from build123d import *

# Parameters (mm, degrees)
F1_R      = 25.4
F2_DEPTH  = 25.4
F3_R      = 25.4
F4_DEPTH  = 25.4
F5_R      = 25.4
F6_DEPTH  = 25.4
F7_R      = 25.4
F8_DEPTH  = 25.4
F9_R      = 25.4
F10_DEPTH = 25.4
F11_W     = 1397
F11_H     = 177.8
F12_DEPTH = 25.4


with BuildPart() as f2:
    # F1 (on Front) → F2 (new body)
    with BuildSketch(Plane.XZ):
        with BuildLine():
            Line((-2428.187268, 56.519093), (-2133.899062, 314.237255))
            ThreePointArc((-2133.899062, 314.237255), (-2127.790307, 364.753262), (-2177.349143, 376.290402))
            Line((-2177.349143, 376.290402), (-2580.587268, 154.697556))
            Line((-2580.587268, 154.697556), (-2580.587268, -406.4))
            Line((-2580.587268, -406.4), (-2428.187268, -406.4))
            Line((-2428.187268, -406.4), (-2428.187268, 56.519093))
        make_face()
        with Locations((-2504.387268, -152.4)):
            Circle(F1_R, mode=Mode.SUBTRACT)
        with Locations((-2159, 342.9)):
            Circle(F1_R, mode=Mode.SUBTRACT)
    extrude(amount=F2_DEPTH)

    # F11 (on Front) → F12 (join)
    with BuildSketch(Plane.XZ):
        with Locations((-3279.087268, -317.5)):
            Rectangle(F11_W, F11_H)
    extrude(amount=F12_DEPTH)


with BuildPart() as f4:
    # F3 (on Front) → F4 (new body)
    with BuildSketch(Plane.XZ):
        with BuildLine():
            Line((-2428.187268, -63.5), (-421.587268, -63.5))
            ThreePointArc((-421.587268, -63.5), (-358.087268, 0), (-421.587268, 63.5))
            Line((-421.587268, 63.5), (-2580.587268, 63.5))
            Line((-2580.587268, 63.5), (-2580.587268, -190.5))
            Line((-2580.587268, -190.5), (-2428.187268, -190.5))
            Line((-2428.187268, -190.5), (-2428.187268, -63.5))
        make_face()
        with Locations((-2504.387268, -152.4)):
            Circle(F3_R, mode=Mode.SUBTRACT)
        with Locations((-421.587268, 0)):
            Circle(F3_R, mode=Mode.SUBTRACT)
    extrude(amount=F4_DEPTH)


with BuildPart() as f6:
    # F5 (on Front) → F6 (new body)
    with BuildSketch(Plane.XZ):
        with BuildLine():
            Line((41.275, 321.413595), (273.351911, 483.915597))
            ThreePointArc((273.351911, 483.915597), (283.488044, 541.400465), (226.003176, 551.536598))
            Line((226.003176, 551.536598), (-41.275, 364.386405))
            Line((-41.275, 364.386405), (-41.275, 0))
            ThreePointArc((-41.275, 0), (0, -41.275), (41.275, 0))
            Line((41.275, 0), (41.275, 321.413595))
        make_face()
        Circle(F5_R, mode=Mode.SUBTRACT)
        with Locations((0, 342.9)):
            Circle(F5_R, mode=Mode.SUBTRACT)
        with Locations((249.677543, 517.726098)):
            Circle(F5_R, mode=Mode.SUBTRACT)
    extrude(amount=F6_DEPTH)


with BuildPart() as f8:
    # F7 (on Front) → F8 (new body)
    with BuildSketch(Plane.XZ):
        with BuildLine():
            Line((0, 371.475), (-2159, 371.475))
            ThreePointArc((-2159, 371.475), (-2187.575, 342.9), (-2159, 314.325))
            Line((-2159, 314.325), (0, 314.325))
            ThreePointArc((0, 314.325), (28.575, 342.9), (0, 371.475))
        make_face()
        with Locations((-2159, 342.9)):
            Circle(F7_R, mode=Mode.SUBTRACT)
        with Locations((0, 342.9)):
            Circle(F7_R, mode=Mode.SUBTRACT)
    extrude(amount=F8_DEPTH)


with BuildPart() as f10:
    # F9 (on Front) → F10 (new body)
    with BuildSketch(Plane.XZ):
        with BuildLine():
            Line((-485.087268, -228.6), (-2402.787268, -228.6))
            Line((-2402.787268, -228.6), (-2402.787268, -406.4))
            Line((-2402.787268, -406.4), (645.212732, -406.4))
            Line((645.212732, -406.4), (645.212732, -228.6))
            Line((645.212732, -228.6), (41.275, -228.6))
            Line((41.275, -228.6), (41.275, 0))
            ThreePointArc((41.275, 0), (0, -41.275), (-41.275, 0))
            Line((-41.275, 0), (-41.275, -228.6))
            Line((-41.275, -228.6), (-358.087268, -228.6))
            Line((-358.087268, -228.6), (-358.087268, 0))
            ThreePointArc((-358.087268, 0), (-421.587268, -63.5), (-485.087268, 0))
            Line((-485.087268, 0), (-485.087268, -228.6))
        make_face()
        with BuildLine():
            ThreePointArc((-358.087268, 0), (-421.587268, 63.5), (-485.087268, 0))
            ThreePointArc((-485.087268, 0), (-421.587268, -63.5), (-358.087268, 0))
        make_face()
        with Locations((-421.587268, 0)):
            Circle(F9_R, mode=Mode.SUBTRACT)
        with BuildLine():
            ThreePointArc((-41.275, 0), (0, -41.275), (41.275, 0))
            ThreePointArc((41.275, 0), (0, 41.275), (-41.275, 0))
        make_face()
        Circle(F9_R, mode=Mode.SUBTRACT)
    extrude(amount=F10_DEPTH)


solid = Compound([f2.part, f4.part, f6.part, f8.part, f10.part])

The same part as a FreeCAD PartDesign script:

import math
import FreeCAD as App
import Part
import Sketcher
from FreeCAD import Vector
Q = App.Units.Quantity

doc = App.newDocument("Part")
body = doc.addObject("PartDesign::Body", "Body")

# Sketch on XZ plane
sketch1 = body.newObject("Sketcher::SketchObject", "Sketch")
sketch1.AttachmentSupport = (doc.getObject("XZ_Plane"), [""])
sketch1.MapMode = "FlatFace"
sketch1.addGeometry([
    Part.LineSegment(Vector(-2428, 57, 0), Vector(-2134, 314, 0)),  # 0
    Part.ArcOfCircle(Part.Circle(Vector(-2159, 343, 0), Vector(0, 0, 1), 38), math.radians(-49), math.radians(119)),  # 1
    Part.LineSegment(Vector(-2177, 376, 0), Vector(-2581, 155, 0)),  # 2
    Part.LineSegment(Vector(-2581, 155, 0), Vector(-2581, -406, 0)),  # 3
    Part.LineSegment(Vector(-2581, -406, 0), Vector(-2428, -406, 0)),  # 4
    Part.LineSegment(Vector(-2428, -406, 0), Vector(-2428, 57, 0)),  # 5
    Part.Circle(Vector(-2504, -152, 0), Vector(0, 0, 1), 25),  # 6
    Part.Circle(Vector(-2159, 343, 0), Vector(0, 0, 1), 25),  # 7
], False)
sketch1.addConstraint([
    Sketcher.Constraint("Tangent", 0, 2, 1, 1),
    Sketcher.Constraint("Tangent", 1, 2, 2, 1),
    Sketcher.Constraint("Coincident", 2, 2, 3, 1),
    Sketcher.Constraint("Coincident", 3, 2, 4, 1),
    Sketcher.Constraint("Coincident", 4, 2, 5, 1),
    Sketcher.Constraint("Coincident", 5, 2, 0, 1),
    Sketcher.Constraint("Vertical", 3),
    Sketcher.Constraint("Horizontal", 4),
    Sketcher.Constraint("Vertical", 5),
    Sketcher.Constraint("Coincident", 7, 3, 1, 3),
    Sketcher.Constraint("Equal", 6, 7),
    Sketcher.Constraint("Diameter", 6, Q("2 in")),
    Sketcher.Constraint("Radius", 1, Q("1.5 in")),
    Sketcher.Constraint("DistanceX", 4, 1, 4, 2, Q("6 in")),
    Sketcher.Constraint("DistanceX", 1, 3, -1, 1, Q("85 in")),
    Sketcher.Constraint("DistanceY", 6, 3, -1, 1, Q("6 in")),
    Sketcher.Constraint("DistanceY", 3, 2, -1, 1, Q("16 in")),
    Sketcher.Constraint("DistanceX", 2, 2, 6, 3, Q("3 in")),
    Sketcher.Constraint("DistanceY", -1, 1, 1, 3, Q("13.5 in")),
    Sketcher.Constraint("DistanceY", 2, 2, 0, 2, Q("159.539699 mm")),
    Sketcher.Constraint("DistanceY", 3, 2, 3, 1, Q("561.097556 mm")),
    Sketcher.Constraint("DistanceY", 5, 1, 5, 2, Q("462.919093 mm")),
])
pad1 = body.newObject("PartDesign::Pad", "Pad")
pad1.Profile = sketch1
pad1.Length = Q("1 in")

# Sketch on XZ plane
sketch2 = body.newObject("Sketcher::SketchObject", "Sketch001")
sketch2.AttachmentSupport = (doc.getObject("XZ_Plane"), [""])
sketch2.MapMode = "FlatFace"
sketch2.addGeometry([
    Part.LineSegment(Vector(-3978, -229, 0), Vector(-3978, -406, 0)),
    Part.LineSegment(Vector(-3978, -406, 0), Vector(-2581, -406, 0)),
    Part.LineSegment(Vector(-2581, -406, 0), Vector(-2581, -229, 0)),
    Part.LineSegment(Vector(-2581, -229, 0), Vector(-3978, -229, 0)),
], False)
sketch2.addConstraint([
    Sketcher.Constraint("Coincident", 0, 2, 1, 1),
    Sketcher.Constraint("Coincident", 1, 2, 2, 1),
    Sketcher.Constraint("Coincident", 2, 2, 3, 1),
    Sketcher.Constraint("Coincident", 3, 2, 0, 1),
    Sketcher.Constraint("Vertical", 0),
    Sketcher.Constraint("Horizontal", 1),
    Sketcher.Constraint("Vertical", 2),
    Sketcher.Constraint("Horizontal", 3),
    Sketcher.Constraint("DistanceX", 1, 1, 1, 2, Q("55 in")),
    Sketcher.Constraint("DistanceY", 0, 2, 0, 1, Q("7 in")),
    Sketcher.Constraint("DistanceY", 0, 2, -1, 1, Q("16 in")),
    Sketcher.Constraint("DistanceX", 0, 2, -1, 1, Q("3977.587268 mm")),
])
pad2 = body.newObject("PartDesign::Pad", "Pad001")
pad2.Profile = sketch2
pad2.Length = Q("1 in")
body2 = doc.addObject("PartDesign::Body", "Body001")

# Sketch on XZ plane
sketch3 = body2.newObject("Sketcher::SketchObject", "Sketch002")
sketch3.AttachmentSupport = (doc.getObject("XZ_Plane001"), [""])
sketch3.MapMode = "FlatFace"
sketch3.addGeometry([
    Part.LineSegment(Vector(-2428, -64, 0), Vector(-422, -64, 0)),  # 0
    Part.ArcOfCircle(Part.Circle(Vector(-422, 0, 0), Vector(0, 0, 1), 64), math.radians(-90), math.radians(90)),  # 1
    Part.LineSegment(Vector(-422, 64, 0), Vector(-2581, 64, 0)),  # 2
    Part.LineSegment(Vector(-2581, 64, 0), Vector(-2581, -190, 0)),  # 3
    Part.LineSegment(Vector(-2581, -190, 0), Vector(-2428, -190, 0)),  # 4
    Part.LineSegment(Vector(-2428, -190, 0), Vector(-2428, -64, 0)),  # 5
    Part.Circle(Vector(-2504, -152, 0), Vector(0, 0, 1), 25),  # 6
    Part.Circle(Vector(-422, 0, 0), Vector(0, 0, 1), 25),  # 7
], False)
sketch3.addConstraint([
    Sketcher.Constraint("Tangent", 0, 2, 1, 1),
    Sketcher.Constraint("Tangent", 1, 2, 2, 1),
    Sketcher.Constraint("Coincident", 2, 2, 3, 1),
    Sketcher.Constraint("Coincident", 3, 2, 4, 1),
    Sketcher.Constraint("Coincident", 4, 2, 5, 1),
    Sketcher.Constraint("Coincident", 5, 2, 0, 1),
    Sketcher.Constraint("Horizontal", 0),
    Sketcher.Constraint("Horizontal", 2),
    Sketcher.Constraint("Vertical", 3),
    Sketcher.Constraint("Horizontal", 4),
    Sketcher.Constraint("Vertical", 5),
    Sketcher.Constraint("Coincident", 7, 3, 1, 3),
    Sketcher.Constraint("Equal", 6, 7),
    Sketcher.Constraint("PointOnObject", 1, 3, -1),
    Sketcher.Constraint("Diameter", 6, Q("2 in")),
    Sketcher.Constraint("Radius", 1, Q("2.5 in")),
    Sketcher.Constraint("DistanceX", 0, 1, 0, 2, Q("79 in")),
    Sketcher.Constraint("DistanceX", 2, 2, 2, 1, Q("85 in")),
    Sketcher.Constraint("DistanceY", 3, 2, 3, 1, Q("10 in")),
    Sketcher.Constraint("DistanceY", 6, 3, -1, 1, Q("6 in")),
    Sketcher.Constraint("DistanceX", 6, 3, 1, 3, Q("82 in")),
    Sketcher.Constraint("DistanceX", 1, 3, -1, 1, Q("421.587268 mm")),
])
pad3 = body2.newObject("PartDesign::Pad", "Pad002")
pad3.Profile = sketch3
pad3.Length = Q("1 in")
body3 = doc.addObject("PartDesign::Body", "Body002")

# Sketch on XZ plane
sketch4 = body3.newObject("Sketcher::SketchObject", "Sketch003")
sketch4.AttachmentSupport = (doc.getObject("XZ_Plane002"), [""])
sketch4.MapMode = "FlatFace"
sketch4.addGeometry([
    Part.LineSegment(Vector(41, 321, 0), Vector(273, 484, 0)),  # 0
    Part.ArcOfCircle(Part.Circle(Vector(250, 518, 0), Vector(0, 0, 1), 41), math.radians(-55), math.radians(125)),  # 1
    Part.LineSegment(Vector(226, 552, 0), Vector(-41, 364, 0)),  # 2
    Part.LineSegment(Vector(-41, 364, 0), Vector(-41, 0, 0)),  # 3
    Part.ArcOfCircle(Part.Circle(Vector(0, 0, 0), Vector(0, 0, 1), 41), math.radians(180), math.radians(360)),  # 4
    Part.LineSegment(Vector(41, 0, 0), Vector(41, 321, 0)),  # 5
    Part.Circle(Vector(0, 0, 0), Vector(0, 0, 1), 25),  # 6
    Part.Circle(Vector(0, 343, 0), Vector(0, 0, 1), 25),  # 7
    Part.Circle(Vector(250, 518, 0), Vector(0, 0, 1), 25),  # 8
], False)
sketch4.addConstraint([
    Sketcher.Constraint("Tangent", 0, 2, 1, 1),
    Sketcher.Constraint("Tangent", 1, 2, 2, 1),
    Sketcher.Constraint("Coincident", 2, 2, 3, 1),
    Sketcher.Constraint("Tangent", 3, 2, 4, 1),
    Sketcher.Constraint("Tangent", 4, 2, 5, 1),
    Sketcher.Constraint("Coincident", 5, 2, 0, 1),
    Sketcher.Constraint("Vertical", 3),
    Sketcher.Constraint("Vertical", 5),
    Sketcher.Constraint("Coincident", 4, 3, -1, 1),
    Sketcher.Constraint("Coincident", 6, 3, -1, 1),
    Sketcher.Constraint("Coincident", 8, 3, 1, 3),
    Sketcher.Constraint("Equal", 1, 4),
    Sketcher.Constraint("Equal", 6, 7),
    Sketcher.Constraint("Equal", 7, 8),
    Sketcher.Constraint("PointOnObject", 7, 3, -2),
    Sketcher.Constraint("Parallel", 0, 2),
    Sketcher.Constraint("Diameter", 6, Q("2 in")),
    Sketcher.Constraint("Angle", 0, Q("35 deg")),
    Sketcher.Constraint("Radius", 1, Q("1.625 in")),
    Sketcher.Constraint("DistanceY", -1, 1, 7, 3, Q("13.5 in")),
    Sketcher.Constraint("DistanceY", -1, 1, 8, 3, Q("517.726098 mm")),
    Sketcher.Constraint("DistanceY", 5, 2, 0, 2, Q("162.502002 mm")),
])
pad4 = body3.newObject("PartDesign::Pad", "Pad003")
pad4.Profile = sketch4
pad4.Length = Q("1 in")
body4 = doc.addObject("PartDesign::Body", "Body003")

# Sketch on XZ plane
sketch5 = body4.newObject("Sketcher::SketchObject", "Sketch004")
sketch5.AttachmentSupport = (doc.getObject("XZ_Plane003"), [""])
sketch5.MapMode = "FlatFace"
sketch5.addGeometry([
    Part.LineSegment(Vector(0, 371, 0), Vector(-2159, 371, 0)),  # 0
    Part.ArcOfCircle(Part.Circle(Vector(-2159, 343, 0), Vector(0, 0, 1), 29), math.radians(90), math.radians(270)),  # 1
    Part.LineSegment(Vector(-2159, 314, 0), Vector(0, 314, 0)),  # 2
    Part.ArcOfCircle(Part.Circle(Vector(0, 343, 0), Vector(0, 0, 1), 29), math.radians(-90), math.radians(90)),  # 3
    Part.Circle(Vector(-2159, 343, 0), Vector(0, 0, 1), 25),  # 4
    Part.Circle(Vector(0, 343, 0), Vector(0, 0, 1), 25),  # 5
], False)
sketch5.addConstraint([
    Sketcher.Constraint("Tangent", 0, 2, 1, 1),
    Sketcher.Constraint("Tangent", 1, 2, 2, 1),
    Sketcher.Constraint("Tangent", 2, 2, 3, 1),
    Sketcher.Constraint("Tangent", 3, 2, 0, 1),
    Sketcher.Constraint("Horizontal", 0),
    Sketcher.Constraint("Horizontal", 2),
    Sketcher.Constraint("Coincident", 4, 3, 1, 3),
    Sketcher.Constraint("Coincident", 5, 3, 3, 3),
    Sketcher.Constraint("Equal", 4, 5),
    Sketcher.Constraint("PointOnObject", 3, 3, -2),
    Sketcher.Constraint("Diameter", 4, Q("2 in")),
    Sketcher.Constraint("DistanceX", 0, 2, 0, 1, Q("85 in")),
    Sketcher.Constraint("Radius", 1, Q("1.125 in")),
    Sketcher.Constraint("DistanceY", -1, 1, 1, 3, Q("13.5 in")),
])
pad5 = body4.newObject("PartDesign::Pad", "Pad004")
pad5.Profile = sketch5
pad5.Length = Q("1 in")
body5 = doc.addObject("PartDesign::Body", "Body004")

# Sketch on XZ plane
sketch6 = body5.newObject("Sketcher::SketchObject", "Sketch005")
sketch6.AttachmentSupport = (doc.getObject("XZ_Plane004"), [""])
sketch6.MapMode = "FlatFace"
sketch6.addGeometry([
    Part.LineSegment(Vector(-485, -229, 0), Vector(-2403, -229, 0)),  # 0
    Part.LineSegment(Vector(-2403, -229, 0), Vector(-2403, -406, 0)),  # 1
    Part.LineSegment(Vector(-2403, -406, 0), Vector(645, -406, 0)),  # 2
    Part.LineSegment(Vector(645, -406, 0), Vector(645, -229, 0)),  # 3
    Part.LineSegment(Vector(645, -229, 0), Vector(41, -229, 0)),  # 4
    Part.LineSegment(Vector(41, -229, 0), Vector(41, 0, 0)),  # 5
    Part.ArcOfCircle(Part.Circle(Vector(0, 0, 0), Vector(0, 0, 1), 41), math.radians(0), math.radians(180)),  # 6
    Part.LineSegment(Vector(-41, 0, 0), Vector(-41, -229, 0)),  # 7
    Part.LineSegment(Vector(-41, -229, 0), Vector(-358, -229, 0)),  # 8
    Part.LineSegment(Vector(-358, -229, 0), Vector(-358, 0, 0)),  # 9
    Part.ArcOfCircle(Part.Circle(Vector(-422, 0, 0), Vector(0, 0, 1), 64), math.radians(0), math.radians(180)),  # 10
    Part.LineSegment(Vector(-485, 0, 0), Vector(-485, -229, 0)),  # 11
    Part.Circle(Vector(-422, 0, 0), Vector(0, 0, 1), 25),  # 12
    Part.Circle(Vector(0, 0, 0), Vector(0, 0, 1), 25),  # 13
], False)
sketch6.addConstraint([
    Sketcher.Constraint("Coincident", 0, 2, 1, 1),
    Sketcher.Constraint("Coincident", 1, 2, 2, 1),
    Sketcher.Constraint("Coincident", 2, 2, 3, 1),
    Sketcher.Constraint("Coincident", 3, 2, 4, 1),
    Sketcher.Constraint("Coincident", 4, 2, 5, 1),
    Sketcher.Constraint("Tangent", 5, 2, 6, 1),
    Sketcher.Constraint("Tangent", 6, 2, 7, 1),
    Sketcher.Constraint("Coincident", 7, 2, 8, 1),
    Sketcher.Constraint("Coincident", 8, 2, 9, 1),
    Sketcher.Constraint("Tangent", 9, 2, 10, 1),
    Sketcher.Constraint("Tangent", 10, 2, 11, 1),
    Sketcher.Constraint("Coincident", 11, 2, 0, 1),
    Sketcher.Constraint("Horizontal", 0),
    Sketcher.Constraint("Vertical", 1),
    Sketcher.Constraint("Horizontal", 2),
    Sketcher.Constraint("Vertical", 3),
    Sketcher.Constraint("Horizontal", 4),
    Sketcher.Constraint("Vertical", 5),
    Sketcher.Constraint("Vertical", 7),
    Sketcher.Constraint("Horizontal", 8),
    Sketcher.Constraint("Vertical", 9),
    Sketcher.Constraint("Vertical", 11),
    Sketcher.Constraint("Coincident", 6, 3, -1, 1),
    Sketcher.Constraint("Coincident", 13, 3, -1, 1),
    Sketcher.Constraint("Coincident", 12, 3, 10, 3),
    Sketcher.Constraint("Equal", 12, 13),
    Sketcher.Constraint("PointOnObject", 10, 3, -1),
    Sketcher.Constraint("Horizontal", 0, 2, 3, 2),
    Sketcher.Constraint("Horizontal", 4, 2, 7, 2),
    Sketcher.Constraint("Diameter", 12, Q("2 in")),
    Sketcher.Constraint("Radius", 10, Q("2.5 in")),
    Sketcher.Constraint("DistanceX", 2, 1, 2, 2, Q("120 in")),
    Sketcher.Constraint("DistanceY", 1, 2, 1, 1, Q("7 in")),
    Sketcher.Constraint("DistanceY", 5, 1, 5, 2, Q("9 in")),
    Sketcher.Constraint("DistanceX", 0, 2, 0, 1, Q("75.5 in")),
    Sketcher.Constraint("Radius", 6, Q("1.625 in")),
    Sketcher.Constraint("DistanceX", 4, 2, 4, 1, Q("603.937732 mm")),
])
pad6 = body5.newObject("PartDesign::Pad", "Pad005")
pad6.Profile = sketch6
pad6.Length = Q("1 in")

doc.recompute()
